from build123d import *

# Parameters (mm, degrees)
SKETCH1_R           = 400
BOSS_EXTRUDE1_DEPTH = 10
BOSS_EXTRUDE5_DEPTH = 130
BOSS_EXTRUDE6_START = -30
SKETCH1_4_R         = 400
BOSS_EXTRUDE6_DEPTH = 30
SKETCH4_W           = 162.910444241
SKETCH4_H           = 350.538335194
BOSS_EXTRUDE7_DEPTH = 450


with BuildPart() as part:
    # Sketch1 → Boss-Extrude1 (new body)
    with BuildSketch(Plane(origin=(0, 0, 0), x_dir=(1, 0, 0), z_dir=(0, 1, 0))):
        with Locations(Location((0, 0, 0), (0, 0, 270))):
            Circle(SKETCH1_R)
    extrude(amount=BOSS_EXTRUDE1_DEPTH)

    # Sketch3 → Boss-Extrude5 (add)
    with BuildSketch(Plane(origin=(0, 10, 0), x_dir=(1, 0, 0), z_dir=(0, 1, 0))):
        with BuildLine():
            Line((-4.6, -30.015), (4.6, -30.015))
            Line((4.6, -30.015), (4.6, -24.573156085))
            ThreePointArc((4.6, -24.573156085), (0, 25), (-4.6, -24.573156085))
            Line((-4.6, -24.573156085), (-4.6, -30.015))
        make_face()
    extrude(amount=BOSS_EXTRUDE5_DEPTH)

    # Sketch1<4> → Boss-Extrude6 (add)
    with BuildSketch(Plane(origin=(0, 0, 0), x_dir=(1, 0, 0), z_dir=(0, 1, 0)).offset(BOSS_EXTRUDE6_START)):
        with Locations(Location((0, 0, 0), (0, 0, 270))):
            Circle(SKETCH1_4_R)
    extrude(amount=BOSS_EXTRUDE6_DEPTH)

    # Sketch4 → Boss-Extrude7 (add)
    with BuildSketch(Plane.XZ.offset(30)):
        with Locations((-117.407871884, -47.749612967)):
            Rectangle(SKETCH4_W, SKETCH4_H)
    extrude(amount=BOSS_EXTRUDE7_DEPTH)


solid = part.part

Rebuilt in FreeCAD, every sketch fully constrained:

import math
import FreeCAD as App
import Part
import Sketcher

doc = App.newDocument("Part")
body = doc.addObject("PartDesign::Body", "Body")

# Sketch on XZ plane
sketch1 = doc.addObject("Sketcher::SketchObject", "Sketch")
body.addObject(sketch1)
sketch1.AttachmentSupport = (doc.XZ_Plane, [""])
sketch1.MapMode = "FlatFace"
sketch1.addGeometry(Part.Circle(App.Vector(0, 0, 0), App.Vector(0, 0, 1), 400), False)
sketch1.addConstraint([
    Sketcher.Constraint("Coincident", 0, 3, -1, 1),
    Sketcher.Constraint("Diameter", 0, 800.0),
])
pad1 = doc.addObject("PartDesign::Pad", "Pad")
body.addObject(pad1)
pad1.Profile = sketch1
pad1.Length = 10
pad1.Reversed = True

# Sketch on XZ plane
sketch2 = doc.addObject("Sketcher::SketchObject", "Sketch001")
body.addObject(sketch2)
sketch2.AttachmentSupport = (doc.XZ_Plane, [""])
sketch2.MapMode = "FlatFace"
sketch2.AttachmentOffset = App.Placement(App.Vector(0, 0, -10), App.Rotation())
sketch2.addGeometry([
    Part.LineSegment(App.Vector(-5, 30, 0), App.Vector(5, 30, 0)),
    Part.LineSegment(App.Vector(5, 30, 0), App.Vector(5, 25, 0)),
    Part.ArcOfCircle(Part.Circle(App.Vector(0, 0, 0), App.Vector(0, 0, 1), 25), math.radians(101), math.radians(439)),
    Part.LineSegment(App.Vector(-5, 25, 0), App.Vector(-5, 30, 0)),
], False)
sketch2.addConstraint([
    Sketcher.Constraint("Coincident", 0, 2, 1, 1),
    Sketcher.Constraint("Coincident", 1, 2, 2, 2),
    Sketcher.Constraint("Coincident", 2, 1, 3, 1),
    Sketcher.Constraint("Coincident", 3, 2, 0, 1),
    Sketcher.Constraint("Horizontal", 0),
    Sketcher.Constraint("Vertical", 1),
    Sketcher.Constraint("Vertical", 3),
    Sketcher.Constraint("Coincident", 2, 3, -1, 1),
    Sketcher.Constraint("Horizontal", 1, 2, 2, 1),
    Sketcher.Constraint("Radius", 2, 25.0),
    Sketcher.Constraint("DistanceX", 0, 1, 0, 2, 9.2),
    Sketcher.Constraint("DistanceY", -1, 1, 0, 2, 30.015),
])
pad2 = doc.addObject("PartDesign::Pad", "Pad001")
body.addObject(pad2)
pad2.Profile = sketch2
pad2.Length = 130
pad2.Reversed = True

# Sketch on XZ plane
sketch3 = doc.addObject("Sketcher::SketchObject", "Sketch002")
body.addObject(sketch3)
sketch3.AttachmentSupport = (doc.XZ_Plane, [""])
sketch3.MapMode = "FlatFace"
sketch3.AttachmentOffset = App.Placement(App.Vector(0, 0, 30), App.Rotation())
sketch3.addGeometry(Part.Circle(App.Vector(0, 0, 0), App.Vector(0, 0, 1), 400), False)
sketch3.addConstraint([
    Sketcher.Constraint("Coincident", 0, 3, -1, 1),
    Sketcher.Constraint("Diameter", 0, 800.0),
])
pad3 = doc.addObject("PartDesign::Pad", "Pad002")
body.addObject(pad3)
pad3.Profile = sketch3
pad3.Length = 30
pad3.Reversed = True

# Sketch on XZ plane
sketch4 = doc.addObject("Sketcher::SketchObject", "Sketch003")
body.addObject(sketch4)
sketch4.AttachmentSupport = (doc.XZ_Plane, [""])
sketch4.MapMode = "FlatFace"
sketch4.AttachmentOffset = App.Placement(App.Vector(0, 0, 30), App.Rotation())
sketch4.addGeometry([
    Part.LineSegment(App.Vector(-199, 128, 0), App.Vector(-199, -223, 0)),
    Part.LineSegment(App.Vector(-199, -223, 0), App.Vector(-36, -223, 0)),
    Part.LineSegment(App.Vector(-36, -223, 0), App.Vector(-36, 128, 0)),
    Part.LineSegment(App.Vector(-36, 128, 0), App.Vector(-199, 128, 0)),
], False)
sketch4.addConstraint([
    Sketcher.Constraint("Coincident", 0, 2, 1, 1),
    Sketcher.Constraint("Coincident", 1, 2, 2, 1),
    Sketcher.Constraint("Coincident", 2, 2, 3, 1),
    Sketcher.Constraint("Coincident", 3, 2, 0, 1),
    Sketcher.Constraint("Vertical", 0),
    Sketcher.Constraint("Horizontal", 1),
    Sketcher.Constraint("Vertical", 2),
    Sketcher.Constraint("Horizontal", 3),
    Sketcher.Constraint("DistanceX", 1, 1, 1, 2, 162.910444),
    Sketcher.Constraint("DistanceY", 0, 2, 0, 1, 350.538335),
    Sketcher.Constraint("DistanceY", 0, 2, -1, 1, 223.018781),
    Sketcher.Constraint("DistanceX", 1, 2, -1, 1, 35.95265),
])
pad4 = doc.addObject("PartDesign::Pad", "Pad003")
body.addObject(pad4)
pad4.Profile = sketch4
pad4.Length = 450

doc.recompute()
